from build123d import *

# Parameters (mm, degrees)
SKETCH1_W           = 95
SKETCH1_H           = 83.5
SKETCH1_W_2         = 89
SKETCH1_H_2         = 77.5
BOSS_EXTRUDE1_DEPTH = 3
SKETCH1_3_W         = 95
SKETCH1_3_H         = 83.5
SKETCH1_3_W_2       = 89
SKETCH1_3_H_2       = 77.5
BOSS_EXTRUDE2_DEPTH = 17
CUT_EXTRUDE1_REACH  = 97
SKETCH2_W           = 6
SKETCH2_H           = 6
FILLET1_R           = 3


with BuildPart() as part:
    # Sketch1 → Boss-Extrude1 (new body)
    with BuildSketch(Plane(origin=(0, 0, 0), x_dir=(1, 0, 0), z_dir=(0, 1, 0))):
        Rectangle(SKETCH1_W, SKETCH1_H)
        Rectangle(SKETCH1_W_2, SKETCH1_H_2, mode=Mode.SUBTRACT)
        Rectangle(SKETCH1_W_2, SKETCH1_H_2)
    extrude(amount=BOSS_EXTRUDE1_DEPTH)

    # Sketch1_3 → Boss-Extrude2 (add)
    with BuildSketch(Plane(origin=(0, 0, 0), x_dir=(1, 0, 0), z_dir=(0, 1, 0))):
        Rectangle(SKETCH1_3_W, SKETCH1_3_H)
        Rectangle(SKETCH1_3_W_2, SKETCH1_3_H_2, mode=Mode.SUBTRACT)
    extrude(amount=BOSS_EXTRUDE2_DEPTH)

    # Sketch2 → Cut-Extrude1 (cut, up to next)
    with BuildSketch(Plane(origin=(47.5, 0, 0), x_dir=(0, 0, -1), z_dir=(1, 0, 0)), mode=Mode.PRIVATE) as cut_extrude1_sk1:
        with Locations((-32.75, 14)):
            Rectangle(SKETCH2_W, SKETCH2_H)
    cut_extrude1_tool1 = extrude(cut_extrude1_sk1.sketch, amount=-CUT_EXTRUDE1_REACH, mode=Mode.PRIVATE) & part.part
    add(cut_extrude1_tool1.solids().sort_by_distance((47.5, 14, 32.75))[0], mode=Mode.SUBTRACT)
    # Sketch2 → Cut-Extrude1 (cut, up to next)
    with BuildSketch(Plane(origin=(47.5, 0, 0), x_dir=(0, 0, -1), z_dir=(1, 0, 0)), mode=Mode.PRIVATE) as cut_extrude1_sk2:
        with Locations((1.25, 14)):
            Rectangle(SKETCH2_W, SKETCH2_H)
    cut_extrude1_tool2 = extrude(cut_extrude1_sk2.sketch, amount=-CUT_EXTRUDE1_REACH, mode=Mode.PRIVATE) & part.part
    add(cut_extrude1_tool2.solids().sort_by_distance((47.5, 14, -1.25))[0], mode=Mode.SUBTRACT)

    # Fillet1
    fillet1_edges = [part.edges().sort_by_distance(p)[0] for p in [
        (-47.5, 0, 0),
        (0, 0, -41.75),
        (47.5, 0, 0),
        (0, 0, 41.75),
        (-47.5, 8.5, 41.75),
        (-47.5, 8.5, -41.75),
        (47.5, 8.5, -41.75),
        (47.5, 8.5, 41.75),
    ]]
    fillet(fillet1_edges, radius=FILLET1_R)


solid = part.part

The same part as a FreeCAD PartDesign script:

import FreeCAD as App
import Part
import Sketcher
from FreeCAD import Vector


def edges_at(feature, points):
    """Names of the edges that pass closest to the given points."""
    edges = feature.Shape.Edges
    near = lambda p: min(range(len(edges)), key=lambda i: edges[i].distToShape(Part.Vertex(*p))[0])
    return sorted({f"Edge{near(p) + 1}" for p in points})

doc = App.newDocument("Part")
body = doc.addObject("PartDesign::Body", "Body")

# Sketch on XZ plane
sketch1 = body.newObject("Sketcher::SketchObject", "Sketch")
sketch1.AttachmentSupport = (doc.getObject("XZ_Plane"), [""])
sketch1.MapMode = "FlatFace"
sketch1.addGeometry(Part.LineSegment(Vector(-48, -42, 0), Vector(-48, 42, 0)), False)
sketch1.addGeometry(Part.LineSegment(Vector(-48, 42, 0), Vector(48, 42, 0)), False)
sketch1.addGeometry(Part.LineSegment(Vector(48, 42, 0), Vector(48, -42, 0)), False)
sketch1.addGeometry(Part.LineSegment(Vector(48, -42, 0), Vector(-48, -42, 0)), False)
sketch1.addConstraint(Sketcher.Constraint("Coincident", 0, 2, 1, 1))
sketch1.addConstraint(Sketcher.Constraint("Coincident", 1, 2, 2, 1))
sketch1.addConstraint(Sketcher.Constraint("Coincident", 2, 2, 3, 1))
sketch1.addConstraint(Sketcher.Constraint("Coincident", 3, 2, 0, 1))
sketch1.addConstraint(Sketcher.Constraint("Vertical", 0))
sketch1.addConstraint(Sketcher.Constraint("Horizontal", 1))
sketch1.addConstraint(Sketcher.Constraint("Vertical", 2))
sketch1.addConstraint(Sketcher.Constraint("Horizontal", 3))
sketch1.addConstraint(Sketcher.Constraint("Symmetric", 0, 2, 2, 2, -1, 1))
sketch1.addConstraint(Sketcher.Constraint("DistanceX", 1, 1, 1, 2, 95.0))
sketch1.addConstraint(Sketcher.Constraint("DistanceY", 0, 1, 0, 2, 83.5))
pad1 = body.newObject("PartDesign::Pad", "Pad")
pad1.Profile = sketch1
pad1.Length = 3
pad1.Reversed = True

# Sketch on XZ plane
sketch2 = body.newObject("Sketcher::SketchObject", "Sketch001")
sketch2.AttachmentSupport = (doc.getObject("XZ_Plane"), [""])
sketch2.MapMode = "FlatFace"
sketch2.addGeometry(Part.LineSegment(Vector(-48, -42, 0), Vector(-48, 42, 0)), False)
sketch2.addGeometry(Part.LineSegment(Vector(-48, 42, 0), Vector(48, 42, 0)), False)
sketch2.addGeometry(Part.LineSegment(Vector(48, 42, 0), Vector(48, -42, 0)), False)
sketch2.addGeometry(Part.LineSegment(Vector(48, -42, 0), Vector(-48, -42, 0)), False)
sketch2.addGeometry(Part.LineSegment(Vector(44, 39, 0), Vector(-44, 39, 0)), False)
sketch2.addGeometry(Part.LineSegment(Vector(-44, 39, 0), Vector(-44, -39, 0)), False)
sketch2.addGeometry(Part.LineSegment(Vector(-44, -39, 0), Vector(44, -39, 0)), False)
sketch2.addGeometry(Part.LineSegment(Vector(44, -39, 0), Vector(44, 39, 0)), False)
sketch2.addConstraint(Sketcher.Constraint("Coincident", 0, 2, 1, 1))
sketch2.addConstraint(Sketcher.Constraint("Coincident", 1, 2, 2, 1))
sketch2.addConstraint(Sketcher.Constraint("Coincident", 2, 2, 3, 1))
sketch2.addConstraint(Sketcher.Constraint("Coincident", 3, 2, 0, 1))
sketch2.addConstraint(Sketcher.Constraint("Coincident", 4, 2, 5, 1))
sketch2.addConstraint(Sketcher.Constraint("Coincident", 5, 2, 6, 1))
sketch2.addConstraint(Sketcher.Constraint("Coincident", 6, 2, 7, 1))
sketch2.addConstraint(Sketcher.Constraint("Coincident", 7, 2, 4, 1))
sketch2.addConstraint(Sketcher.Constraint("Vertical", 0))
sketch2.addConstraint(Sketcher.Constraint("Horizontal", 1))
sketch2.addConstraint(Sketcher.Constraint("Vertical", 2))
sketch2.addConstraint(Sketcher.Constraint("Horizontal", 3))
sketch2.addConstraint(Sketcher.Constraint("Horizontal", 4))
sketch2.addConstraint(Sketcher.Constraint("Vertical", 5))
sketch2.addConstraint(Sketcher.Constraint("Horizontal", 6))
sketch2.addConstraint(Sketcher.Constraint("Vertical", 7))
sketch2.addConstraint(Sketcher.Constraint("Symmetric", 0, 2, 2, 2, -1, 1))
sketch2.addConstraint(Sketcher.Constraint("Symmetric", 4, 2, 6, 2, -1, 1))
sketch2.addConstraint(Sketcher.Constraint("DistanceX", 1, 1, 1, 2, 95.0))
sketch2.addConstraint(Sketcher.Constraint("DistanceX", 4, 2, 4, 1, 89.0))
sketch2.addConstraint(Sketcher.Constraint("DistanceY", 0, 1, 0, 2, 83.5))
sketch2.addConstraint(Sketcher.Constraint("DistanceY", 5, 2, 5, 1, 77.5))
pad2 = body.newObject("PartDesign::Pad", "Pad001")
pad2.Profile = sketch2
pad2.Length = 17
pad2.Reversed = True

# Sketch on YZ plane
sketch3 = body.newObject("Sketcher::SketchObject", "Sketch002")
sketch3.AttachmentSupport = (doc.getObject("YZ_Plane"), [""])
sketch3.MapMode = "FlatFace"
sketch3.AttachmentOffset = App.Placement(Vector(0, 0, 47.5), App.Rotation())
sketch3.addGeometry(Part.LineSegment(Vector(17, 36, 0), Vector(11, 36, 0)), False)
sketch3.addGeometry(Part.LineSegment(Vector(11, 36, 0), Vector(11, 30, 0)), False)
sketch3.addGeometry(Part.LineSegment(Vector(11, 30, 0), Vector(17, 30, 0)), False)
sketch3.addGeometry(Part.LineSegment(Vector(17, 30, 0), Vector(17, 36, 0)), False)
sketch3.addConstraint(Sketcher.Constraint("Coincident", 0, 2, 1, 1))
sketch3.addConstraint(Sketcher.Constraint("Coincident", 1, 2, 2, 1))
sketch3.addConstraint(Sketcher.Constraint("Coincident", 2, 2, 3, 1))
sketch3.addConstraint(Sketcher.Constraint("Coincident", 3, 2, 0, 1))
sketch3.addConstraint(Sketcher.Constraint("Horizontal", 0))
sketch3.addConstraint(Sketcher.Constraint("Vertical", 1))
sketch3.addConstraint(Sketcher.Constraint("Horizontal", 2))
sketch3.addConstraint(Sketcher.Constraint("Vertical", 3))
sketch3.addConstraint(Sketcher.Constraint("Equal", 2, 1))
sketch3.addConstraint(Sketcher.Constraint("DistanceX", 0, 2, 0, 1, 6.0))
sketch3.addConstraint(Sketcher.Constraint("DistanceX", -1, 1, 0, 2, 11.0))
sketch3.addConstraint(Sketcher.Constraint("DistanceY", -1, 1, 0, 2, 35.75))
pocket1 = body.newObject("PartDesign::Pocket", "Pocket")
pocket1.Profile = sketch3
pocket1.Type = "UpToFirst"

# Sketch on YZ plane
sketch4 = body.newObject("Sketcher::SketchObject", "Sketch003")
sketch4.AttachmentSupport = (doc.getObject("YZ_Plane"), [""])
sketch4.MapMode = "FlatFace"
sketch4.AttachmentOffset = App.Placement(Vector(0, 0, 47.5), App.Rotation())
sketch4.addGeometry(Part.LineSegment(Vector(17, 2, 0), Vector(11, 2, 0)), False)
sketch4.addGeometry(Part.LineSegment(Vector(11, 2, 0), Vector(11, -4, 0)), False)
sketch4.addGeometry(Part.LineSegment(Vector(11, -4, 0), Vector(17, -4, 0)), False)
sketch4.addGeometry(Part.LineSegment(Vector(17, -4, 0), Vector(17, 2, 0)), False)
sketch4.addConstraint(Sketcher.Constraint("Coincident", 0, 2, 1, 1))
sketch4.addConstraint(Sketcher.Constraint("Coincident", 1, 2, 2, 1))
sketch4.addConstraint(Sketcher.Constraint("Coincident", 2, 2, 3, 1))
sketch4.addConstraint(Sketcher.Constraint("Coincident", 3, 2, 0, 1))
sketch4.addConstraint(Sketcher.Constraint("Horizontal", 0))
sketch4.addConstraint(Sketcher.Constraint("Vertical", 1))
sketch4.addConstraint(Sketcher.Constraint("Horizontal", 2))
sketch4.addConstraint(Sketcher.Constraint("Vertical", 3))
sketch4.addConstraint(Sketcher.Constraint("Equal", 2, 1))
sketch4.addConstraint(Sketcher.Constraint("DistanceX", 0, 2, 0, 1, 6.0))
sketch4.addConstraint(Sketcher.Constraint("DistanceX", -1, 1, 0, 2, 11.0))
sketch4.addConstraint(Sketcher.Constraint("DistanceY", -1, 1, 0, 2, 1.75))
pocket2 = body.newObject("PartDesign::Pocket", "Pocket001")
pocket2.Profile = sketch4
pocket2.Type = "UpToFirst"
doc.recompute()

fillet = body.newObject("PartDesign::Fillet", "Fillet")
fillet.Base = (pocket2, edges_at(pocket2, [
    (-47.5, 0, 0),
    (0, 0, -41.75),
    (47.5, 0, 0),
    (0, 0, 41.75),
    (-47.5, 8.5, 41.75),
    (-47.5, 8.5, -41.75),
    (47.5, 8.5, -41.75),
    (47.5, 8.5, 41.75),
]))
fillet.Radius = 3

doc.recompute()
